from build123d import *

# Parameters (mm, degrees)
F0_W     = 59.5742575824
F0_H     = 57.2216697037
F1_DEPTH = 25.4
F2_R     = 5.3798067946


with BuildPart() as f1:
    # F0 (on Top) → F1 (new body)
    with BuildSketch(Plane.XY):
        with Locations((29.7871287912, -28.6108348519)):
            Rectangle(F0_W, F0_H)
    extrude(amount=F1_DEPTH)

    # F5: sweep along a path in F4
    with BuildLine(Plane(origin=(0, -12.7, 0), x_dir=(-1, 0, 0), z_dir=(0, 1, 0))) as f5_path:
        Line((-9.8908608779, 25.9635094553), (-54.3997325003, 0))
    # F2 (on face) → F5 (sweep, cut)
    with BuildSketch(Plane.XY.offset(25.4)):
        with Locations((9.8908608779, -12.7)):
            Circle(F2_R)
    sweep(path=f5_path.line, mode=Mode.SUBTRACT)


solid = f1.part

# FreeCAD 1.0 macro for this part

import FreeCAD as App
import Part
import Sketcher
Q = App.Units.Quantity

doc = App.newDocument("Part")
body = doc.addObject("PartDesign::Body", "Body")

# Sketch on XY plane
sketch1 = body.newObject("Sketcher::SketchObject", "Sketch")
sketch1.AttachmentSupport = (doc.getObject("XY_Plane"), [""])
sketch1.MapMode = "FlatFace"
sketch1.addGeometry([
    Part.LineSegment(App.Vector(0, 0, 0), App.Vector(0, -57, 0)),
    Part.LineSegment(App.Vector(0, -57, 0), App.Vector(60, -57, 0)),
    Part.LineSegment(App.Vector(60, -57, 0), App.Vector(60, 0, 0)),
    Part.LineSegment(App.Vector(60, 0, 0), App.Vector(0, 0, 0)),
], False)
sketch1.addConstraint([
    Sketcher.Constraint("Coincident", 0, 2, 1, 1),
    Sketcher.Constraint("Coincident", 1, 2, 2, 1),
    Sketcher.Constraint("Coincident", 2, 2, 3, 1),
    Sketcher.Constraint("Coincident", 3, 2, 0, 1),
    Sketcher.Constraint("Vertical", 0),
    Sketcher.Constraint("Horizontal", 1),
    Sketcher.Constraint("Vertical", 2),
    Sketcher.Constraint("Horizontal", 3),
    Sketcher.Constraint("Coincident", 3, 2, -1, 1),
    Sketcher.Constraint("DistanceY", 0, 2, 0, 1, Q("57.22167 mm")),
    Sketcher.Constraint("DistanceX", 1, 1, 1, 2, Q("59.574258 mm")),
])
pad1 = body.newObject("PartDesign::Pad", "Pad")
pad1.Profile = sketch1
pad1.Length = Q("1 in")

# Sketch on XY plane
sketch2 = body.newObject("Sketcher::SketchObject", "Sketch001")
sketch2.AttachmentSupport = (doc.getObject("XY_Plane"), [""])
sketch2.MapMode = "FlatFace"
sketch2.AttachmentOffset = App.Placement(App.Vector(0, 0, 1 * 25.4), App.Rotation())
sketch2.addGeometry(Part.Circle(App.Vector(10, -13, 0), App.Vector(0, 0, 1), 5), False)
sketch2.addConstraint([
    Sketcher.Constraint("DistanceY", 0, 3, -1, 1, Q("0.5 in")),
    Sketcher.Constraint("Diameter", 0, Q("10.759614 mm")),
    Sketcher.Constraint("DistanceX", -1, 1, 0, 3, Q("9.890861 mm")),
])

# Sketch on an angled plane
sketch3 = body.newObject("Sketcher::SketchObject", "Sketch002")
sketch3.Placement = App.Placement(App.Vector(13.811332, 0, 23.676568), App.Rotation(App.Vector(0.863778892, 0, -0.50387104), App.Vector(0, 0.999999999, 0), App.Vector(0.50387104, 0, 0.863778892), "ZXY"))
sketch3.addGeometry(Part.LineSegment(App.Vector(-5, -13, 0), App.Vector(47, -13, 0)), False)
sketch3.addConstraint([
    Sketcher.Constraint("Horizontal", 0),
    Sketcher.Constraint("DistanceY", 0, 1, -1, 1, Q("0.5 in")),
    Sketcher.Constraint("DistanceX", 0, 1, 0, 2, Q("51.528084 mm")),
    Sketcher.Constraint("DistanceX", -1, 1, 0, 2, Q("46.989341 mm")),
])
doc.recompute()

subtractivepipe = body.newObject("PartDesign::SubtractivePipe", "SubtractivePipe")
subtractivepipe.Profile = sketch2
subtractivepipe.Spine = (sketch3, ["Edge1"])

doc.recompute()
